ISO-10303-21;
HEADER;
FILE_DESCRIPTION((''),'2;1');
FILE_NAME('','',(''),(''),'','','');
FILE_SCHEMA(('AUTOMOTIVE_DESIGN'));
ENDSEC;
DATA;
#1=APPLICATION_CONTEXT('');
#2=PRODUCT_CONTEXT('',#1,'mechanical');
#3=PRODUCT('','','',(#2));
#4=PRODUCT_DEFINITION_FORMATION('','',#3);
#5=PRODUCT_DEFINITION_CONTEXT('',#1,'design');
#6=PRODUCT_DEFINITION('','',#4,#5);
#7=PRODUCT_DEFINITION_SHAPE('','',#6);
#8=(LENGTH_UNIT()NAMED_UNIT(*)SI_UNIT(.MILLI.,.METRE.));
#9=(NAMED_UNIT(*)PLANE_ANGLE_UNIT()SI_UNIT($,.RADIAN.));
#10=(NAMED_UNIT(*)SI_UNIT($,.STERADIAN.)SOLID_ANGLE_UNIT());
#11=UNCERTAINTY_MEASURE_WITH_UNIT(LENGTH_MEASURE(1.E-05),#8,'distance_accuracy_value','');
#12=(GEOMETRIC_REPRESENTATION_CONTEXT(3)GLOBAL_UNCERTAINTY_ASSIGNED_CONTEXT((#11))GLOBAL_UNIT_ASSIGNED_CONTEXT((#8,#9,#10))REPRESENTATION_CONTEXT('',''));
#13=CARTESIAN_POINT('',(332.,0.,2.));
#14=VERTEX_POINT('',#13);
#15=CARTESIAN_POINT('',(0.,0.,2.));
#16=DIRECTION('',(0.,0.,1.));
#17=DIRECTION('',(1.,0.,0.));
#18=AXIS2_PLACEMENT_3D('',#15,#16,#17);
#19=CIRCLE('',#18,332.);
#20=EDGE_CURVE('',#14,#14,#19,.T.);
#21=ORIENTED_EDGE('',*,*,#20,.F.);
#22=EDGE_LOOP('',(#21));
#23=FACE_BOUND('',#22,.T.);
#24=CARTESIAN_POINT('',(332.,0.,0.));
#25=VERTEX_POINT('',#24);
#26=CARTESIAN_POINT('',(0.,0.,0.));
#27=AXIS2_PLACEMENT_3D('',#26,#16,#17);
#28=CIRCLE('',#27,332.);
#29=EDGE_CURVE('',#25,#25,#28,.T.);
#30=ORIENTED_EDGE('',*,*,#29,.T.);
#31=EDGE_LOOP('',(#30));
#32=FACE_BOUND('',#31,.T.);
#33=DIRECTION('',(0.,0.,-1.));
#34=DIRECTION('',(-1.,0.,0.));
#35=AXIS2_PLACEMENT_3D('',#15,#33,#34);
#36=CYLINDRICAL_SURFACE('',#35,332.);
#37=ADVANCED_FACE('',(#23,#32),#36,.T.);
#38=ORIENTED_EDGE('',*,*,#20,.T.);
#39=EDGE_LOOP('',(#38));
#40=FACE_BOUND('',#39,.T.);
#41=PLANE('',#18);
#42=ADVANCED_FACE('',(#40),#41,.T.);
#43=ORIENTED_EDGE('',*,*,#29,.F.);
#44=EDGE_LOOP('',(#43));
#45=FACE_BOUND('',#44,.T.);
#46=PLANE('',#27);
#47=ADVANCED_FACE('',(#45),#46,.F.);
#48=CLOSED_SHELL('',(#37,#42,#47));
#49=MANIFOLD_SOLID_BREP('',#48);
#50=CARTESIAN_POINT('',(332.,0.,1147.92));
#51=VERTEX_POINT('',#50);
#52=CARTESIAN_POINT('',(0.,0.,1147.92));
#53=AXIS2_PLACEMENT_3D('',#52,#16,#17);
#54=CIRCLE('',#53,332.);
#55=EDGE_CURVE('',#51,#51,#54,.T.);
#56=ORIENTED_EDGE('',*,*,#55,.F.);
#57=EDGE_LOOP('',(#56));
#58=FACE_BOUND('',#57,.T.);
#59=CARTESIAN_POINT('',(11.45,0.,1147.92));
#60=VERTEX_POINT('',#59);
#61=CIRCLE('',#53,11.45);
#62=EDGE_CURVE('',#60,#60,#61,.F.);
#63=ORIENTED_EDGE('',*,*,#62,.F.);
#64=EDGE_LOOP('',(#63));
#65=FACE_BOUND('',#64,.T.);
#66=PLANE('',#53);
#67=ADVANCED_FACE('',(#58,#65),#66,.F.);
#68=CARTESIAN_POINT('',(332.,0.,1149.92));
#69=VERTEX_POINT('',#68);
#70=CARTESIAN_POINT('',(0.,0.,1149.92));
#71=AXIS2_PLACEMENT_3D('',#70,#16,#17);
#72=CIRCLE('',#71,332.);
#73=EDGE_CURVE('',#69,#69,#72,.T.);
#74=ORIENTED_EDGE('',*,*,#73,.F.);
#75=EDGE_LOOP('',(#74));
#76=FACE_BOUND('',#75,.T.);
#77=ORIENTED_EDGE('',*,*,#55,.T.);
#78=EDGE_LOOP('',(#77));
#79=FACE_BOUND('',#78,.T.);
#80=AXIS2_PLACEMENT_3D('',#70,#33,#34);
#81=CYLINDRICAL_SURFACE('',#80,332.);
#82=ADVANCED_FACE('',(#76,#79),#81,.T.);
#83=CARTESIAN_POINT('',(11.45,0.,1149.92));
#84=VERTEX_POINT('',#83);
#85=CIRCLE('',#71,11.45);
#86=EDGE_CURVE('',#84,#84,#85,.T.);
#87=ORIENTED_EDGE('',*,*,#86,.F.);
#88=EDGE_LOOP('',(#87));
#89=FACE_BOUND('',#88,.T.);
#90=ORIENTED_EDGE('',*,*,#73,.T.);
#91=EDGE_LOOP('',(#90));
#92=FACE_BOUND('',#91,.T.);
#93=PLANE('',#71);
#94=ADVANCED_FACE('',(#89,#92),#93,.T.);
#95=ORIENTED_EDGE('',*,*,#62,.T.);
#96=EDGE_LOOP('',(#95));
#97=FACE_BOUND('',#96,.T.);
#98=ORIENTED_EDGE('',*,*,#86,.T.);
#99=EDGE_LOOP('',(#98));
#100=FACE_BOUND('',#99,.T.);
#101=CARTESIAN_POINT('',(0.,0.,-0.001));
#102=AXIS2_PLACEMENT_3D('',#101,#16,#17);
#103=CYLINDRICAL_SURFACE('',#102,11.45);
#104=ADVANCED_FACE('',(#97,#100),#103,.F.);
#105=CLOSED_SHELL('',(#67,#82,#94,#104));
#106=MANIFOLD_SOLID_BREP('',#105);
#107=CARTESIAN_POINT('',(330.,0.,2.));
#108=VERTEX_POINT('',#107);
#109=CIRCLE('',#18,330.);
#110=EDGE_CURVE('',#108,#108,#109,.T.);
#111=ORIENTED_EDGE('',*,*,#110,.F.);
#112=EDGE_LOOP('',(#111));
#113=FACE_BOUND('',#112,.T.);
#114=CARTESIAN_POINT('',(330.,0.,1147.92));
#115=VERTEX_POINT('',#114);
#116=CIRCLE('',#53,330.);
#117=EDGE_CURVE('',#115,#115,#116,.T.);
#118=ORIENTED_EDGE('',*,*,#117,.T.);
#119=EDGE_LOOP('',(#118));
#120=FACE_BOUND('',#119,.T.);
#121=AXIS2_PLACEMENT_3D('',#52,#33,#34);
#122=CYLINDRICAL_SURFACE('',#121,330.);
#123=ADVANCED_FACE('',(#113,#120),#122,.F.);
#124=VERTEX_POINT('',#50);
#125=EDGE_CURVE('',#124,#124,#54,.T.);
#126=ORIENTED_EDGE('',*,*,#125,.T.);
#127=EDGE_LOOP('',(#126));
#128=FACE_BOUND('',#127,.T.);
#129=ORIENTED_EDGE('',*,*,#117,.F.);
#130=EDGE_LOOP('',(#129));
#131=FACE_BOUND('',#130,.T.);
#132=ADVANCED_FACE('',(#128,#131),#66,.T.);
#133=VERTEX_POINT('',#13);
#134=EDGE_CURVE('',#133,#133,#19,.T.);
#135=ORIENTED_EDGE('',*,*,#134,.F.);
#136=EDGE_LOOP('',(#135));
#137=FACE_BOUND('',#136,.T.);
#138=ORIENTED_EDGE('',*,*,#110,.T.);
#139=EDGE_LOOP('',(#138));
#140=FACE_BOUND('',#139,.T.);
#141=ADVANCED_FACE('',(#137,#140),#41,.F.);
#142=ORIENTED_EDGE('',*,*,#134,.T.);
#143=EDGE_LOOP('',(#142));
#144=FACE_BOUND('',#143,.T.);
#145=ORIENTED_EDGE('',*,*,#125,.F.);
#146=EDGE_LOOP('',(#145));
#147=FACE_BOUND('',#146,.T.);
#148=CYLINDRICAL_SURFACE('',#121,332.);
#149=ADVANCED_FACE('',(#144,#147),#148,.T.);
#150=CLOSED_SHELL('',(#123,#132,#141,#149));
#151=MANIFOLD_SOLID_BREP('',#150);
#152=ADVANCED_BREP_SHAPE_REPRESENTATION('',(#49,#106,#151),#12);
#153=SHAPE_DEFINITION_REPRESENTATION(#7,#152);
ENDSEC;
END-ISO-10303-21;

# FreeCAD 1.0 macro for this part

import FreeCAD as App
import Part
import Sketcher

V = App.Vector
Q = App.Units.Quantity

doc = App.newDocument("Part")
body = doc.addObject("PartDesign::Body", "Body")

sketch1 = body.newObject("Sketcher::SketchObject", "Sketch")
sketch1.AttachmentSupport = (doc.getObject("XY_Plane"), [""])
sketch1.MapMode = "FlatFace"
sketch1.addGeometry(Part.Circle(V(0, 0, 0), V(0, 0, 1), 332), False)
sketch1.addConstraint([
    Sketcher.Constraint("Coincident", 0, 3, -1, 1),
    Sketcher.Constraint("Diameter", 0, Q("664 mm")),
])
pad1 = body.newObject("PartDesign::Pad", "Pad")
pad1.Profile = sketch1
pad1.Length = 2
body2 = doc.addObject("PartDesign::Body", "Body001")

sketch2 = body2.newObject("Sketcher::SketchObject", "Sketch001")
sketch2.AttachmentSupport = (doc.getObject("XY_Plane001"), [""])
sketch2.MapMode = "FlatFace"
sketch2.AttachmentOffset = App.Placement(V(0, 0, 2), App.Rotation())
sketch2.addGeometry([
    Part.Circle(V(0, 0, 0), V(0, 0, 1), 332),
    Part.Circle(V(0, 0, 0), V(0, 0, 1), 330),
], False)
sketch2.addConstraint([
    Sketcher.Constraint("Coincident", 0, 3, -1, 1),
    Sketcher.Constraint("Coincident", 1, 3, -1, 1),
    Sketcher.Constraint("Diameter", 0, Q("664 mm")),
    Sketcher.Constraint("Diameter", 1, Q("660 mm")),
])
pad2 = body2.newObject("PartDesign::Pad", "Pad001")
pad2.Profile = sketch2
pad2.Length = 1145.92
body3 = doc.addObject("PartDesign::Body", "Body002")

sketch3 = body3.newObject("Sketcher::SketchObject", "Sketch002")
sketch3.AttachmentSupport = (doc.getObject("XY_Plane002"), [""])
sketch3.MapMode = "FlatFace"
sketch3.AttachmentOffset = App.Placement(V(0, 0, 1147.92), App.Rotation())
sketch3.addGeometry(Part.Circle(V(0, 0, 0), V(0, 0, 1), 332), False)
sketch3.addConstraint([
    Sketcher.Constraint("Coincident", 0, 3, -1, 1),
    Sketcher.Constraint("Diameter", 0, Q("664 mm")),
])
pad3 = body3.newObject("PartDesign::Pad", "Pad002")
pad3.Profile = sketch3
pad3.Length = 2

sketch4 = body3.newObject("Sketcher::SketchObject", "Sketch003")
sketch4.AttachmentSupport = (doc.getObject("XY_Plane002"), [""])
sketch4.MapMode = "FlatFace"
sketch4.AttachmentOffset = App.Placement(V(0, 0, 1149.92), App.Rotation())
sketch4.addGeometry(Part.Circle(V(0, 0, 0), V(0, 0, 1), 11.45), False)
sketch4.addConstraint([
    Sketcher.Constraint("Coincident", 0, 3, -1, 1),
    Sketcher.Constraint("Diameter", 0, Q("22.9 mm")),
])
pocket1 = body3.newObject("PartDesign::Pocket", "Pocket")
pocket1.Profile = sketch4
pocket1.Length = 2

doc.recompute()
